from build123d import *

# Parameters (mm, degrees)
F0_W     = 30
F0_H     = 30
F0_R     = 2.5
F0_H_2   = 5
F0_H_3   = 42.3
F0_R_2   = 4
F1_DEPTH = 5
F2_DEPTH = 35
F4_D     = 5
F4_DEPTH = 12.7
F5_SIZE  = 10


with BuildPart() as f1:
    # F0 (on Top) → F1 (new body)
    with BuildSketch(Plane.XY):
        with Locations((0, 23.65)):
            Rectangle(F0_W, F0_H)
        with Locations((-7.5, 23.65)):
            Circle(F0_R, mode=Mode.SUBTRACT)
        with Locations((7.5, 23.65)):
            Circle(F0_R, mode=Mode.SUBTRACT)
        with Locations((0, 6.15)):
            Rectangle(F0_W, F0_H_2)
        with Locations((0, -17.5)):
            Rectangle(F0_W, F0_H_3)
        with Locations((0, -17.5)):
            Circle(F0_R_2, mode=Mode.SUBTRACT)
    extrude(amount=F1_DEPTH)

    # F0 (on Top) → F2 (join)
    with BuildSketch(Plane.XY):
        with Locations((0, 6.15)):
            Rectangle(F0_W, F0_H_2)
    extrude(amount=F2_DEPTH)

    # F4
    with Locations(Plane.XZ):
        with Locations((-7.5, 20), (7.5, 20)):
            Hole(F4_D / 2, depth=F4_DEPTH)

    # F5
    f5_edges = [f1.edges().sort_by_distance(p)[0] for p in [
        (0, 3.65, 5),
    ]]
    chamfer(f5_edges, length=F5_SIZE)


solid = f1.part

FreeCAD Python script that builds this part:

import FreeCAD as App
import Part
import Sketcher

V = App.Vector


def edges_at(feature, points):
    """Names of the edges that pass closest to the given points."""
    edges = feature.Shape.Edges
    near = lambda p: min(range(len(edges)), key=lambda i: edges[i].distToShape(Part.Vertex(*p))[0])
    return sorted({f"Edge{near(p) + 1}" for p in points})

doc = App.newDocument("Part")
params = doc.addObject("Spreadsheet::Sheet", "Params")
for row, (alias, value) in enumerate([
    ("sketch1_diameter", "8 mm"),
    ("sketch1_diameter2", "5 mm"),
    ("sketch1_width", "30 mm"),
    ("sketch1_height", "77.3 mm"),
    ("pad1_length", "5 mm"),
    ("sketch2_width", "30 mm"),
    ("sketch2_height", "5 mm"),
    ("pad2_length", "35 mm"),
    ("sketch3_diameter", "5 mm"),
    ("hole_diameter", "5 mm"),
    ("hole_depth", "12.7 mm"),
    ("chamfer_size", "10 mm"),
], start=1):
    params.set(f"A{row}", alias)
    params.set(f"B{row}", "=" + value)
    params.setAlias(f"B{row}", alias)

body = doc.addObject("PartDesign::Body", "Body")

sketch1 = body.newObject("Sketcher::SketchObject", "Sketch")
sketch1.AttachmentSupport = (doc.getObject("XY_Plane"), [""])
sketch1.MapMode = "FlatFace"
sketch1.addGeometry([
    Part.LineSegment(V(-15, 38.65, 0), V(-15, -38.65, 0)),
    Part.LineSegment(V(-15, -38.65, 0), V(15, -38.65, 0)),
    Part.LineSegment(V(15, -38.65, 0), V(15, 38.65, 0)),
    Part.LineSegment(V(15, 38.65, 0), V(-15, 38.65, 0)),
    Part.Circle(V(0, -17.5, 0), V(0, 0, 1), 4),
    Part.Circle(V(-7.5, 23.65, 0), V(0, 0, 1), 2.5),
    Part.Circle(V(7.5, 23.65, 0), V(0, 0, 1), 2.5),
], False)
sketch1.addConstraint([
    Sketcher.Constraint("Coincident", 0, 2, 1, 1),
    Sketcher.Constraint("Coincident", 1, 2, 2, 1),
    Sketcher.Constraint("Coincident", 2, 2, 3, 1),
    Sketcher.Constraint("Coincident", 3, 2, 0, 1),
    Sketcher.Constraint("Vertical", 0),
    Sketcher.Constraint("Horizontal", 1),
    Sketcher.Constraint("Vertical", 2),
    Sketcher.Constraint("Horizontal", 3),
    Sketcher.Constraint("Equal", 5, 6),
    Sketcher.Constraint("Symmetric", 0, 2, 2, 2, -1, 1),
    Sketcher.Constraint("Symmetric", 5, 3, 6, 3, -2),
    Sketcher.Constraint("PointOnObject", 4, 3, -2),
    Sketcher.Constraint("Diameter", 4, 8.0),
    Sketcher.Constraint("Diameter", 5, 5.0),
    Sketcher.Constraint("DistanceX", 1, 1, 1, 2, 30.0),
    Sketcher.Constraint("DistanceY", 0, 2, 0, 1, 77.3),
    Sketcher.Constraint("DistanceX", 5, 3, 6, 3, 15.0),
    Sketcher.Constraint("DistanceY", 6, 3, 2, 2, 15.0),
    Sketcher.Constraint("DistanceY", 4, 3, -1, 1, 17.5),
])
sketch1.setExpression("Constraints[12]", "Params.sketch1_diameter")
sketch1.setExpression("Constraints[13]", "Params.sketch1_diameter2")
sketch1.setExpression("Constraints[14]", "Params.sketch1_width")
sketch1.setExpression("Constraints[15]", "Params.sketch1_height")
pad1 = body.newObject("PartDesign::Pad", "Pad")
pad1.Profile = sketch1
pad1.setExpression("Length", "Params.pad1_length")

sketch2 = body.newObject("Sketcher::SketchObject", "Sketch001")
sketch2.AttachmentSupport = (doc.getObject("XY_Plane"), [""])
sketch2.MapMode = "FlatFace"
sketch2.addGeometry([
    Part.LineSegment(V(-15, 8.65, 0), V(-15, 3.65, 0)),
    Part.LineSegment(V(-15, 3.65, 0), V(15, 3.65, 0)),
    Part.LineSegment(V(15, 3.65, 0), V(15, 8.65, 0)),
    Part.LineSegment(V(15, 8.65, 0), V(-15, 8.65, 0)),
], False)
sketch2.addConstraint([
    Sketcher.Constraint("Coincident", 0, 2, 1, 1),
    Sketcher.Constraint("Coincident", 1, 2, 2, 1),
    Sketcher.Constraint("Coincident", 2, 2, 3, 1),
    Sketcher.Constraint("Coincident", 3, 2, 0, 1),
    Sketcher.Constraint("Vertical", 0),
    Sketcher.Constraint("Horizontal", 1),
    Sketcher.Constraint("Vertical", 2),
    Sketcher.Constraint("Horizontal", 3),
    Sketcher.Constraint("DistanceX", 1, 1, 1, 2, 30.0),
    Sketcher.Constraint("DistanceY", 0, 2, 0, 1, 5.0),
    Sketcher.Constraint("DistanceX", 0, 2, -1, 1, 15.0),
    Sketcher.Constraint("DistanceY", -1, 1, 0, 2, 3.65),
])
sketch2.setExpression("Constraints[8]", "Params.sketch2_width")
sketch2.setExpression("Constraints[9]", "Params.sketch2_height")
pad2 = body.newObject("PartDesign::Pad", "Pad001")
pad2.Profile = sketch2
pad2.setExpression("Length", "Params.pad2_length")

sketch3 = body.newObject("Sketcher::SketchObject", "Sketch002")
sketch3.AttachmentSupport = (doc.getObject("XZ_Plane"), [""])
sketch3.MapMode = "FlatFace"
sketch3.addGeometry([
    Part.Circle(V(-7.5, 20, 0), V(0, 0, 1), 2.5),
    Part.Circle(V(7.5, 20, 0), V(0, 0, 1), 2.5),
], False)
sketch3.addConstraint([
    Sketcher.Constraint("Equal", 0, 1),
    Sketcher.Constraint("Symmetric", 0, 3, 1, 3, -2),
    Sketcher.Constraint("Diameter", 0, 5.0),
    Sketcher.Constraint("DistanceY", -1, 1, 0, 3, 20.0),
    Sketcher.Constraint("DistanceX", 0, 3, 1, 3, 15.0),
])
sketch3.setExpression("Constraints[2]", "Params.sketch3_diameter")
doc.recompute()
hole = body.newObject("PartDesign::Hole", "Hole")
hole.Profile = sketch3
hole.ThreadType = "None"
hole.setExpression("Diameter", "Params.hole_diameter")
hole.DepthType = "Dimension"
hole.setExpression("Depth", "Params.hole_depth")
hole.DrillPoint = "Flat"
doc.recompute()

chamfer = body.newObject("PartDesign::Chamfer", "Chamfer")
chamfer.Base = (hole, edges_at(hole, [(0, 3.65, 5)]))
chamfer.setExpression("Size", "Params.chamfer_size")

doc.recompute()
